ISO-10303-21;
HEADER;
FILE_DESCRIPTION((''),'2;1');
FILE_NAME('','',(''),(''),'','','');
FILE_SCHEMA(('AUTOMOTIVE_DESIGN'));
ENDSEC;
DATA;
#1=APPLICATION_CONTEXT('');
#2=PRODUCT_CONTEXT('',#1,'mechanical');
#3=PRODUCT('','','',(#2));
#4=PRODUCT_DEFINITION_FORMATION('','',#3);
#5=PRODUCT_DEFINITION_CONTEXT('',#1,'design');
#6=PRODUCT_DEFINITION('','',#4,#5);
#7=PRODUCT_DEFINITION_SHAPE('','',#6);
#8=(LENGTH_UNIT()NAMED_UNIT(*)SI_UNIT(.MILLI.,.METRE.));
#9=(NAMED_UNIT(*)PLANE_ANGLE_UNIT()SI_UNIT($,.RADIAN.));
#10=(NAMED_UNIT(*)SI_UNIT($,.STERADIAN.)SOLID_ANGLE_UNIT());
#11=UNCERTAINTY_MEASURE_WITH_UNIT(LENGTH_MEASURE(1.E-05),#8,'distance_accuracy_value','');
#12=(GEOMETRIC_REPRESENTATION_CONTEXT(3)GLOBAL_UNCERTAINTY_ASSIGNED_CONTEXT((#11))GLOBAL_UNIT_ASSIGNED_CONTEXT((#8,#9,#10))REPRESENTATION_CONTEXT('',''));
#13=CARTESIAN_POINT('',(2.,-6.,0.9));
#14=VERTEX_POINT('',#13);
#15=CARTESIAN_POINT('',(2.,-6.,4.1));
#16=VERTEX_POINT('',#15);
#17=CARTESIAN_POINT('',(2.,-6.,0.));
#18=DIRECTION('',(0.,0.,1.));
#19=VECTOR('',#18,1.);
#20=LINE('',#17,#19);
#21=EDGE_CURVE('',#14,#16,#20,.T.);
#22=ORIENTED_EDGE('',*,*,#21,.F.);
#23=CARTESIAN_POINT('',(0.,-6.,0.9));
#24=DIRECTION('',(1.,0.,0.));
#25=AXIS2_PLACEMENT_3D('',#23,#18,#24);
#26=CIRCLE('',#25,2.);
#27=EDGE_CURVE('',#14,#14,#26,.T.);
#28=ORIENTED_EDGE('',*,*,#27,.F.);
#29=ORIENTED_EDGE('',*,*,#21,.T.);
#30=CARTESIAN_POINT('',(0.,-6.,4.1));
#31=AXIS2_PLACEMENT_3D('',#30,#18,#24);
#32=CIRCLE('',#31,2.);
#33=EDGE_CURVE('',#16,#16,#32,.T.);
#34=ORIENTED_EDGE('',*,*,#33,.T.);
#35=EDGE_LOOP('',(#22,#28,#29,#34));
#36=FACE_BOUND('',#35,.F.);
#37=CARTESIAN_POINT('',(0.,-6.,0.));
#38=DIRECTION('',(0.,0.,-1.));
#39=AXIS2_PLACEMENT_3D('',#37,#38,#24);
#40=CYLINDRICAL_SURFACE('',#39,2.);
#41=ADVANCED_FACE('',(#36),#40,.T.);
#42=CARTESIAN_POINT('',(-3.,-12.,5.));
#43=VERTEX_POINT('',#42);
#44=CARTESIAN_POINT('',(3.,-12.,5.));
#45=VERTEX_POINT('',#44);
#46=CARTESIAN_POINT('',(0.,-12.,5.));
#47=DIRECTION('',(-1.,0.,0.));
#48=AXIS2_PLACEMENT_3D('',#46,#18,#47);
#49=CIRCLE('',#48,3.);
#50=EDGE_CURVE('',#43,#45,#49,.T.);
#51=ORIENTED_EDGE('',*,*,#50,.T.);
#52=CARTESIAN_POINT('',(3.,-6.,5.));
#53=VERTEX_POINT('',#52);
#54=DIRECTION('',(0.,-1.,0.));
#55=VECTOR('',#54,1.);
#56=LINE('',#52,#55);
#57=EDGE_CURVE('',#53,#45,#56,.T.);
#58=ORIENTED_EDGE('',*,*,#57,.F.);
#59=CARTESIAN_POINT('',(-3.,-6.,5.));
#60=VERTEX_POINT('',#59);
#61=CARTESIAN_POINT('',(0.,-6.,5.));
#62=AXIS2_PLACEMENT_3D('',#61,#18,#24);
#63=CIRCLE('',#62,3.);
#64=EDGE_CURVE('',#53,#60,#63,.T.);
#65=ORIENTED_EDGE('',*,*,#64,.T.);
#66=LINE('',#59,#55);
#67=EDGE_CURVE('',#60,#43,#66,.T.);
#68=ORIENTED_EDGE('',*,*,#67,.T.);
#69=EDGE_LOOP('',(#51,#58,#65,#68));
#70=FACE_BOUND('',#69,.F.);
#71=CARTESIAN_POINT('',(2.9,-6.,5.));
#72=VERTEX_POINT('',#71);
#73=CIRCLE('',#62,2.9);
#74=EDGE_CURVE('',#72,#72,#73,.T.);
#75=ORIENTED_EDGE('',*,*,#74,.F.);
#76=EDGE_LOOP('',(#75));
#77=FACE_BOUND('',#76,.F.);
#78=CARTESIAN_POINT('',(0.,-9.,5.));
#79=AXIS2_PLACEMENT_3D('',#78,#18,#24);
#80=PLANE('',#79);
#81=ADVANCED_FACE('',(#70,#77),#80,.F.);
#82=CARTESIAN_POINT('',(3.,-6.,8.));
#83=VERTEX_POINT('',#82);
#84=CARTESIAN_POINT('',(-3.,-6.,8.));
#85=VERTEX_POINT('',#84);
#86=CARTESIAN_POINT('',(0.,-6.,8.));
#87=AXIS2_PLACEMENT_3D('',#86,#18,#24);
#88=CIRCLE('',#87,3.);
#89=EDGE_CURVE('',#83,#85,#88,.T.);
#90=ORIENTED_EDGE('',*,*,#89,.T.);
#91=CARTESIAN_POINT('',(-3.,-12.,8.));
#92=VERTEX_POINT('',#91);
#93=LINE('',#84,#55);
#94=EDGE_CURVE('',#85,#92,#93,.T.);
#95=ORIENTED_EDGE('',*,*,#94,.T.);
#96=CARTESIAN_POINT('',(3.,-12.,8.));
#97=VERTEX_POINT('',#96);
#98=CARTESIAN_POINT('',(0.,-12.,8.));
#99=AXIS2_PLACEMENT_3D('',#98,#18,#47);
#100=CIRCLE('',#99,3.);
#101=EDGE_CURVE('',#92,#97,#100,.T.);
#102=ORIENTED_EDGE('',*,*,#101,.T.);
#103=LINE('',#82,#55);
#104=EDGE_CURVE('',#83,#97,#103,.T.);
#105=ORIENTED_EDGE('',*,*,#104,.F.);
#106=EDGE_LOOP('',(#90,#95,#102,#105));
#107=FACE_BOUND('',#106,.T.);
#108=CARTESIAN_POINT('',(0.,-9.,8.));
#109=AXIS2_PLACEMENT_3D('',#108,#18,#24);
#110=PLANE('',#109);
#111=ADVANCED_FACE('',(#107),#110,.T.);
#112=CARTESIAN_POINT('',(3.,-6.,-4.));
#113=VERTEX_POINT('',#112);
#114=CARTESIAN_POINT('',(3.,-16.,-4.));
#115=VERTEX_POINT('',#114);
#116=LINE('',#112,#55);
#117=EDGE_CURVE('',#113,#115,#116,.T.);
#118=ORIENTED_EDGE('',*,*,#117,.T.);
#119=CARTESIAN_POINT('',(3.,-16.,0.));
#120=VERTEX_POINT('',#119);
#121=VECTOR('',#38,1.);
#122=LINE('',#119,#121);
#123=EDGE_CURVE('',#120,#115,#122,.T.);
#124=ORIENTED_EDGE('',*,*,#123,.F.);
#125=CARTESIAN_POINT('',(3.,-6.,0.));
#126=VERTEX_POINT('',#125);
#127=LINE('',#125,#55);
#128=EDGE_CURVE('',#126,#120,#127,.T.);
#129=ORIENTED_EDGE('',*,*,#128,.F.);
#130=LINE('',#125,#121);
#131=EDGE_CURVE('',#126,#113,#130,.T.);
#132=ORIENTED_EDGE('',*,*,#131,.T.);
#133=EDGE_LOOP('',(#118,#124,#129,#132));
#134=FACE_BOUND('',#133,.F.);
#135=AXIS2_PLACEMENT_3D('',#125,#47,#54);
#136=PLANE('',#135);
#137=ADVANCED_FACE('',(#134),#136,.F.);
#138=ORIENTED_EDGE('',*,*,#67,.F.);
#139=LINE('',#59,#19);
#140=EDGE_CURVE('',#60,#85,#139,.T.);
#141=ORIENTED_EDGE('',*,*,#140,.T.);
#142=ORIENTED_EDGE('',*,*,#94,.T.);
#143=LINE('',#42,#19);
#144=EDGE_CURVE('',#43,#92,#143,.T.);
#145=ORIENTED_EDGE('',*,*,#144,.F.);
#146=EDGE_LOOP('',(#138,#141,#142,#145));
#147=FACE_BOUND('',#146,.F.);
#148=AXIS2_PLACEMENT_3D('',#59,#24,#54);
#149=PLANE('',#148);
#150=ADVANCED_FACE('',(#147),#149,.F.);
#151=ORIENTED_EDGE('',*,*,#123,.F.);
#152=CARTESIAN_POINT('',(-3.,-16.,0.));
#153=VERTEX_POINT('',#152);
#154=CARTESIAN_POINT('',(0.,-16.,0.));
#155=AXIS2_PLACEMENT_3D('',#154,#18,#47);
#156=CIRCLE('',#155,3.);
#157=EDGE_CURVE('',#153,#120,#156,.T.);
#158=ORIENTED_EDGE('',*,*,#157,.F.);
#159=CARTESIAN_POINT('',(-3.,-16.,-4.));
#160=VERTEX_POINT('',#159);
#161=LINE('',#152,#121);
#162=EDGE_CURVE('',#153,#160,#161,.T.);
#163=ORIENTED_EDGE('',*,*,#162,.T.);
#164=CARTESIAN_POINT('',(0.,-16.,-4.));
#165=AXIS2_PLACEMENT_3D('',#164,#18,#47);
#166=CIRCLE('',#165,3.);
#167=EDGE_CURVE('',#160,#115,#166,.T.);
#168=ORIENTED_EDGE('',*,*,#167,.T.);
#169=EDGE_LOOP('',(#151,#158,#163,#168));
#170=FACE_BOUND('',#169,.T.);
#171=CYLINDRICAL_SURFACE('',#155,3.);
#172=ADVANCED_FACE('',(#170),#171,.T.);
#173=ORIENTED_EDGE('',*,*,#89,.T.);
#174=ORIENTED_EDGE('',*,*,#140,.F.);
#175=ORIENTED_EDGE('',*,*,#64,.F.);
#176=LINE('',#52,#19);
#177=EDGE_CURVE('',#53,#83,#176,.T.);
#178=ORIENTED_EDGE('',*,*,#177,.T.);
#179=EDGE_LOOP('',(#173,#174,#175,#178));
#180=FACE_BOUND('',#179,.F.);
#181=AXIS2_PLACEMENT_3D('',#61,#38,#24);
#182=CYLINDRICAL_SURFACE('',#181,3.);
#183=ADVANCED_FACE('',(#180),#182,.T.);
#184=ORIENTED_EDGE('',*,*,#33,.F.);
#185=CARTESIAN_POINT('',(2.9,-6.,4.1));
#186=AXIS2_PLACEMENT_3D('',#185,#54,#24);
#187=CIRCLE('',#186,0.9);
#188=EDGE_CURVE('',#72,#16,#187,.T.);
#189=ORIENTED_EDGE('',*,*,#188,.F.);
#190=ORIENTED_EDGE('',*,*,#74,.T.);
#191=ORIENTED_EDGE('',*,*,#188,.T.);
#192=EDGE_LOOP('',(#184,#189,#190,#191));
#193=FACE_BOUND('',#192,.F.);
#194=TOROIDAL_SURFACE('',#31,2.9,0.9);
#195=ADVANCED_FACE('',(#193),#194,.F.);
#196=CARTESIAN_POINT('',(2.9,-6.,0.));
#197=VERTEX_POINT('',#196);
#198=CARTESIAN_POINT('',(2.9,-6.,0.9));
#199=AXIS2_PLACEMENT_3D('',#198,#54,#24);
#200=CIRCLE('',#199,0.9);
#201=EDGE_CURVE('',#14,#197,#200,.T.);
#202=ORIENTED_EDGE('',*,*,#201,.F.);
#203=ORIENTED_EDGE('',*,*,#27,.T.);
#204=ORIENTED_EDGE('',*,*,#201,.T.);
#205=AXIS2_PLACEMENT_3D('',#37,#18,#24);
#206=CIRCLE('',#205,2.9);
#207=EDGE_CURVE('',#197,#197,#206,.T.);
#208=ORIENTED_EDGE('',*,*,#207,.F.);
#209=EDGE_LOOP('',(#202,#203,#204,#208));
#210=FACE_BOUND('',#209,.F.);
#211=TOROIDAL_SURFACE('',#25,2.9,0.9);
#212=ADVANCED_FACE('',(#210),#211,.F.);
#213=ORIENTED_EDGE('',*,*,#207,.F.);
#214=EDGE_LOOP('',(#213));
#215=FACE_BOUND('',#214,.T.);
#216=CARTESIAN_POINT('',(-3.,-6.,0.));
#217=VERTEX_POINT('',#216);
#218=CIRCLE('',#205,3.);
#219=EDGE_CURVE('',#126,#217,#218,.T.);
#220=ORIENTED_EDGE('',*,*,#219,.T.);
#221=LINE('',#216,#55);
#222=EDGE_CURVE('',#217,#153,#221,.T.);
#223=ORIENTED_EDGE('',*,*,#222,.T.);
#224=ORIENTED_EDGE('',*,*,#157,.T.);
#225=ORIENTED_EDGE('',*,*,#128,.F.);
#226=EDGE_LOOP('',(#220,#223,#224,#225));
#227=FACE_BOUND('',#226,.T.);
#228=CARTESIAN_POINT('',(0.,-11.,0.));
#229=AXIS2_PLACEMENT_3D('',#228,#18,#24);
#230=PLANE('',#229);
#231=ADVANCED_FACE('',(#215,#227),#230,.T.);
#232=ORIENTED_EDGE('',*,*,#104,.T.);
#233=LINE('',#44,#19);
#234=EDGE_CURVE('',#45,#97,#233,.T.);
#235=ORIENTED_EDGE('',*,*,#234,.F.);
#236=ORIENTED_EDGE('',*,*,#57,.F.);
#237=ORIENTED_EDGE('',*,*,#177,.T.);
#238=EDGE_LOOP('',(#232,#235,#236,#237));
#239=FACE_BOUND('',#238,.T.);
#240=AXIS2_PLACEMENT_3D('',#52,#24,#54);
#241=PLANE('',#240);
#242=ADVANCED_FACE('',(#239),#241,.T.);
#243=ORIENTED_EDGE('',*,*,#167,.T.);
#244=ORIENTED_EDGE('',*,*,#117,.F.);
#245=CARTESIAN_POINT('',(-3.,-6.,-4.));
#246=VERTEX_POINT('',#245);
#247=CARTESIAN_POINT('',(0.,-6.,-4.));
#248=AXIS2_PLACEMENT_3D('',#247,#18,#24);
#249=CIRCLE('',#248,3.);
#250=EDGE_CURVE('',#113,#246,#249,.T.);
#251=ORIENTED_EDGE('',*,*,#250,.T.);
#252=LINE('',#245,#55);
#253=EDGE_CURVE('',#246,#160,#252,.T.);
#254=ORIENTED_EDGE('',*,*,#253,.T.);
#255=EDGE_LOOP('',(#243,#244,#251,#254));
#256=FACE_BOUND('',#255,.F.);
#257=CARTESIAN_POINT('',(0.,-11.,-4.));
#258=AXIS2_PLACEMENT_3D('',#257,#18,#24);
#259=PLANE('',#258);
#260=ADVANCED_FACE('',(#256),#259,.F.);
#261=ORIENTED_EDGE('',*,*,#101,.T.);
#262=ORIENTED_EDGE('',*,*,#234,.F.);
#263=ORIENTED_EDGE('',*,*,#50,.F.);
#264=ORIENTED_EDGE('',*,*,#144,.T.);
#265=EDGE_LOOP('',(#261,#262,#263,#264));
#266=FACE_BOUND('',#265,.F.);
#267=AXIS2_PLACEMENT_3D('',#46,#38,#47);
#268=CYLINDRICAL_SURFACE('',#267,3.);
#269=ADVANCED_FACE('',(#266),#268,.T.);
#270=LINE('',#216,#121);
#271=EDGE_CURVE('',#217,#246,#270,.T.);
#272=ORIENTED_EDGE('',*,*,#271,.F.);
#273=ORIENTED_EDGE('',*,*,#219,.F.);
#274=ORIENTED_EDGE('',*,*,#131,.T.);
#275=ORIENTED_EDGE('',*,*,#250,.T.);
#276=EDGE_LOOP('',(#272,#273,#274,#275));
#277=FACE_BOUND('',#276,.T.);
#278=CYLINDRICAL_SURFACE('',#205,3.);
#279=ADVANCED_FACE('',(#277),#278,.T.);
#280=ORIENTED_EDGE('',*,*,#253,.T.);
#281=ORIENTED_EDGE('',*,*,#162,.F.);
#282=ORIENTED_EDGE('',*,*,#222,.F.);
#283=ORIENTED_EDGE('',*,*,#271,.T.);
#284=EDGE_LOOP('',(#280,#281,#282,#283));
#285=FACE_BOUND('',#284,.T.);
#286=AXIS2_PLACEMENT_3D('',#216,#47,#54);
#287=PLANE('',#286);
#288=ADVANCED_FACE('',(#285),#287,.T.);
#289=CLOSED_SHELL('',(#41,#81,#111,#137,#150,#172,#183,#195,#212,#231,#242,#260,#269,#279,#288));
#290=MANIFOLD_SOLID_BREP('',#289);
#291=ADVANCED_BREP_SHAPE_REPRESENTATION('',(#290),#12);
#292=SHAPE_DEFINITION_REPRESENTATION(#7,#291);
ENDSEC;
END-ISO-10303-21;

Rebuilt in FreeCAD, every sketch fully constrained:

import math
import FreeCAD as App
import Part
import Sketcher
Q = App.Units.Quantity


def edges_at(feature, points):
    """Names of the edges that pass closest to the given points."""
    edges = feature.Shape.Edges
    near = lambda p: min(range(len(edges)), key=lambda i: edges[i].distToShape(Part.Vertex(*p))[0])
    return sorted({f"Edge{near(p) + 1}" for p in points})

doc = App.newDocument("Part")
body = doc.addObject("PartDesign::Body", "Body")

# Sketch on XY plane
sketch1 = body.newObject("Sketcher::SketchObject", "Sketch")
sketch1.AttachmentSupport = (doc.getObject("XY_Plane"), [""])
sketch1.MapMode = "FlatFace"
sketch1.addGeometry([
    Part.ArcOfCircle(Part.Circle(App.Vector(0, -6, 0), App.Vector(0, 0, 1), 3), math.radians(0), math.radians(180)),
    Part.LineSegment(App.Vector(-3, -6, 0), App.Vector(-3, -16, 0)),
    Part.ArcOfCircle(Part.Circle(App.Vector(0, -16, 0), App.Vector(0, 0, 1), 3), math.radians(180), math.radians(360)),
    Part.LineSegment(App.Vector(3, -16, 0), App.Vector(3, -6, 0)),
], False)
sketch1.addConstraint([
    Sketcher.Constraint("Tangent", 0, 2, 1, 1),
    Sketcher.Constraint("Tangent", 1, 2, 2, 1),
    Sketcher.Constraint("Tangent", 2, 2, 3, 1),
    Sketcher.Constraint("Tangent", 3, 2, 0, 1),
    Sketcher.Constraint("Vertical", 1),
    Sketcher.Constraint("Vertical", 3),
    Sketcher.Constraint("PointOnObject", 0, 3, -2),
    Sketcher.Constraint("Radius", 0, Q("3 mm")),
    Sketcher.Constraint("DistanceY", 1, 2, 1, 1, Q("10 mm")),
    Sketcher.Constraint("DistanceY", 0, 3, -1, 1, Q("6 mm")),
])
pad1 = body.newObject("PartDesign::Pad", "Pad")
pad1.Profile = sketch1
pad1.Length = 4
pad1.Reversed = True

# Sketch on XY plane
sketch2 = body.newObject("Sketcher::SketchObject", "Sketch001")
sketch2.AttachmentSupport = (doc.getObject("XY_Plane"), [""])
sketch2.MapMode = "FlatFace"
sketch2.addGeometry(Part.Circle(App.Vector(0, -6, 0), App.Vector(0, 0, 1), 2), False)
sketch2.addConstraint([
    Sketcher.Constraint("PointOnObject", 0, 3, -2),
    Sketcher.Constraint("Diameter", 0, Q("4 mm")),
    Sketcher.Constraint("DistanceY", 0, 3, -1, 1, Q("6 mm")),
])
pad2 = body.newObject("PartDesign::Pad", "Pad001")
pad2.Profile = sketch2
pad2.Length = 5

# Sketch on XY plane
sketch3 = body.newObject("Sketcher::SketchObject", "Sketch002")
sketch3.AttachmentSupport = (doc.getObject("XY_Plane"), [""])
sketch3.MapMode = "FlatFace"
sketch3.AttachmentOffset = App.Placement(App.Vector(0, 0, 5), App.Rotation())
sketch3.addGeometry([
    Part.ArcOfCircle(Part.Circle(App.Vector(0, -6, 0), App.Vector(0, 0, 1), 3), math.radians(0), math.radians(180)),
    Part.LineSegment(App.Vector(-3, -6, 0), App.Vector(-3, -12, 0)),
    Part.ArcOfCircle(Part.Circle(App.Vector(0, -12, 0), App.Vector(0, 0, 1), 3), math.radians(180), math.radians(360)),
    Part.LineSegment(App.Vector(3, -12, 0), App.Vector(3, -6, 0)),
], False)
sketch3.addConstraint([
    Sketcher.Constraint("Tangent", 0, 2, 1, 1),
    Sketcher.Constraint("Tangent", 1, 2, 2, 1),
    Sketcher.Constraint("Tangent", 2, 2, 3, 1),
    Sketcher.Constraint("Tangent", 3, 2, 0, 1),
    Sketcher.Constraint("Vertical", 1),
    Sketcher.Constraint("Vertical", 3),
    Sketcher.Constraint("PointOnObject", 0, 3, -2),
    Sketcher.Constraint("Radius", 0, Q("3 mm")),
    Sketcher.Constraint("DistanceY", 1, 2, 1, 1, Q("6 mm")),
    Sketcher.Constraint("DistanceY", 0, 3, -1, 1, Q("6 mm")),
])
pad3 = body.newObject("PartDesign::Pad", "Pad002")
pad3.Profile = sketch3
pad3.Length = 3
doc.recompute()

fillet = body.newObject("PartDesign::Fillet", "Fillet")
fillet.Base = (pad3, edges_at(pad3, [(-2, -6, 5)]))
fillet.Radius = 0.9
doc.recompute()

fillet2 = body.newObject("PartDesign::Fillet", "Fillet001")
fillet2.Base = (fillet, edges_at(fillet, [(-2, -6, 0)]))
fillet2.Radius = 0.9

doc.recompute()
